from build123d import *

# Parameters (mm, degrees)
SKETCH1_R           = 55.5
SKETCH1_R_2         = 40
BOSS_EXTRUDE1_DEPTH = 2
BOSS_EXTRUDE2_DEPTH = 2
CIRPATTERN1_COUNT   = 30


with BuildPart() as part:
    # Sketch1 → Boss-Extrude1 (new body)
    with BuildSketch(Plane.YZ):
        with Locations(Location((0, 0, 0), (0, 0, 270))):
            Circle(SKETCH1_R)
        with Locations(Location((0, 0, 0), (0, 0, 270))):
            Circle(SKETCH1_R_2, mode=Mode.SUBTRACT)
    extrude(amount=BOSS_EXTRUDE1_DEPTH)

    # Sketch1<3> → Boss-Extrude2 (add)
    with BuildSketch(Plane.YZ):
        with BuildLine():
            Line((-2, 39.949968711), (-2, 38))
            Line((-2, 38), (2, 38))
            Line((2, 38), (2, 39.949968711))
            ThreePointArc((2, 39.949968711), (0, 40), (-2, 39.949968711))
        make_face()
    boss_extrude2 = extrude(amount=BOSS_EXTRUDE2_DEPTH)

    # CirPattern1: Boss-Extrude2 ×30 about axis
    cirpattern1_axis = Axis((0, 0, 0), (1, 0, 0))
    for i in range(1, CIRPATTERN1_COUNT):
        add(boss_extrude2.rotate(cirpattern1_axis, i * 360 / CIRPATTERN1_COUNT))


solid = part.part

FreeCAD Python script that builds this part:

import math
import FreeCAD as App
import Part
import Sketcher
Q = App.Units.Quantity

doc = App.newDocument("Part")
body = doc.addObject("PartDesign::Body", "Body")

sketch1 = body.newObject("Sketcher::SketchObject", "Sketch")
sketch1.AttachmentSupport = (doc.getObject("YZ_Plane"), [""])
sketch1.MapMode = "FlatFace"
sketch1.addGeometry([
    Part.Circle(App.Vector(0, 0, 0), App.Vector(0, 0, 1), 56),
    Part.Circle(App.Vector(0, 0, 0), App.Vector(0, 0, 1), 40),
], False)
sketch1.addConstraint([
    Sketcher.Constraint("Coincident", 0, 3, -1, 1),
    Sketcher.Constraint("Coincident", 1, 3, -1, 1),
    Sketcher.Constraint("Diameter", 0, Q("111 mm")),
    Sketcher.Constraint("Diameter", 1, Q("80 mm")),
])
pad1 = body.newObject("PartDesign::Pad", "Pad")
pad1.Profile = sketch1
pad1.Length = 2

sketch2 = body.newObject("Sketcher::SketchObject", "Sketch001")
sketch2.AttachmentSupport = (doc.getObject("YZ_Plane"), [""])
sketch2.MapMode = "FlatFace"
sketch2.addGeometry([
    Part.LineSegment(App.Vector(-2, 39.9, 0), App.Vector(-2, 38, 0)),
    Part.LineSegment(App.Vector(-2, 38, 0), App.Vector(2, 38, 0)),
    Part.LineSegment(App.Vector(2, 38, 0), App.Vector(2, 39.9, 0)),
    Part.ArcOfCircle(Part.Circle(App.Vector(0, 0, 0), App.Vector(0, 0, 1), 40), math.radians(87.13), math.radians(92.87)),
], False)
sketch2.addConstraint([
    Sketcher.Constraint("Coincident", 0, 2, 1, 1),
    Sketcher.Constraint("Coincident", 1, 2, 2, 1),
    Sketcher.Constraint("Coincident", 2, 2, 3, 1),
    Sketcher.Constraint("Coincident", 3, 2, 0, 1),
    Sketcher.Constraint("Vertical", 0),
    Sketcher.Constraint("Horizontal", 1),
    Sketcher.Constraint("Vertical", 2),
    Sketcher.Constraint("Coincident", 3, 3, -1, 1),
    Sketcher.Constraint("Horizontal", 2, 2, 3, 2),
    Sketcher.Constraint("Radius", 3, Q("40 mm")),
    Sketcher.Constraint("DistanceX", 1, 1, 1, 2, Q("4 mm")),
    Sketcher.Constraint("DistanceY", -1, 1, 0, 2, Q("38 mm")),
])
pad2 = body.newObject("PartDesign::Pad", "Pad001")
pad2.Profile = sketch2
pad2.Length = 2
doc.recompute()

polarpattern = body.newObject("PartDesign::PolarPattern", "PolarPattern")
polarpattern.Originals = [pad2]
polarpattern.Axis = (doc.getObject("X_Axis"), [""])
polarpattern.Angle = 360
polarpattern.Occurrences = 30
body.Tip = polarpattern

doc.recompute()
